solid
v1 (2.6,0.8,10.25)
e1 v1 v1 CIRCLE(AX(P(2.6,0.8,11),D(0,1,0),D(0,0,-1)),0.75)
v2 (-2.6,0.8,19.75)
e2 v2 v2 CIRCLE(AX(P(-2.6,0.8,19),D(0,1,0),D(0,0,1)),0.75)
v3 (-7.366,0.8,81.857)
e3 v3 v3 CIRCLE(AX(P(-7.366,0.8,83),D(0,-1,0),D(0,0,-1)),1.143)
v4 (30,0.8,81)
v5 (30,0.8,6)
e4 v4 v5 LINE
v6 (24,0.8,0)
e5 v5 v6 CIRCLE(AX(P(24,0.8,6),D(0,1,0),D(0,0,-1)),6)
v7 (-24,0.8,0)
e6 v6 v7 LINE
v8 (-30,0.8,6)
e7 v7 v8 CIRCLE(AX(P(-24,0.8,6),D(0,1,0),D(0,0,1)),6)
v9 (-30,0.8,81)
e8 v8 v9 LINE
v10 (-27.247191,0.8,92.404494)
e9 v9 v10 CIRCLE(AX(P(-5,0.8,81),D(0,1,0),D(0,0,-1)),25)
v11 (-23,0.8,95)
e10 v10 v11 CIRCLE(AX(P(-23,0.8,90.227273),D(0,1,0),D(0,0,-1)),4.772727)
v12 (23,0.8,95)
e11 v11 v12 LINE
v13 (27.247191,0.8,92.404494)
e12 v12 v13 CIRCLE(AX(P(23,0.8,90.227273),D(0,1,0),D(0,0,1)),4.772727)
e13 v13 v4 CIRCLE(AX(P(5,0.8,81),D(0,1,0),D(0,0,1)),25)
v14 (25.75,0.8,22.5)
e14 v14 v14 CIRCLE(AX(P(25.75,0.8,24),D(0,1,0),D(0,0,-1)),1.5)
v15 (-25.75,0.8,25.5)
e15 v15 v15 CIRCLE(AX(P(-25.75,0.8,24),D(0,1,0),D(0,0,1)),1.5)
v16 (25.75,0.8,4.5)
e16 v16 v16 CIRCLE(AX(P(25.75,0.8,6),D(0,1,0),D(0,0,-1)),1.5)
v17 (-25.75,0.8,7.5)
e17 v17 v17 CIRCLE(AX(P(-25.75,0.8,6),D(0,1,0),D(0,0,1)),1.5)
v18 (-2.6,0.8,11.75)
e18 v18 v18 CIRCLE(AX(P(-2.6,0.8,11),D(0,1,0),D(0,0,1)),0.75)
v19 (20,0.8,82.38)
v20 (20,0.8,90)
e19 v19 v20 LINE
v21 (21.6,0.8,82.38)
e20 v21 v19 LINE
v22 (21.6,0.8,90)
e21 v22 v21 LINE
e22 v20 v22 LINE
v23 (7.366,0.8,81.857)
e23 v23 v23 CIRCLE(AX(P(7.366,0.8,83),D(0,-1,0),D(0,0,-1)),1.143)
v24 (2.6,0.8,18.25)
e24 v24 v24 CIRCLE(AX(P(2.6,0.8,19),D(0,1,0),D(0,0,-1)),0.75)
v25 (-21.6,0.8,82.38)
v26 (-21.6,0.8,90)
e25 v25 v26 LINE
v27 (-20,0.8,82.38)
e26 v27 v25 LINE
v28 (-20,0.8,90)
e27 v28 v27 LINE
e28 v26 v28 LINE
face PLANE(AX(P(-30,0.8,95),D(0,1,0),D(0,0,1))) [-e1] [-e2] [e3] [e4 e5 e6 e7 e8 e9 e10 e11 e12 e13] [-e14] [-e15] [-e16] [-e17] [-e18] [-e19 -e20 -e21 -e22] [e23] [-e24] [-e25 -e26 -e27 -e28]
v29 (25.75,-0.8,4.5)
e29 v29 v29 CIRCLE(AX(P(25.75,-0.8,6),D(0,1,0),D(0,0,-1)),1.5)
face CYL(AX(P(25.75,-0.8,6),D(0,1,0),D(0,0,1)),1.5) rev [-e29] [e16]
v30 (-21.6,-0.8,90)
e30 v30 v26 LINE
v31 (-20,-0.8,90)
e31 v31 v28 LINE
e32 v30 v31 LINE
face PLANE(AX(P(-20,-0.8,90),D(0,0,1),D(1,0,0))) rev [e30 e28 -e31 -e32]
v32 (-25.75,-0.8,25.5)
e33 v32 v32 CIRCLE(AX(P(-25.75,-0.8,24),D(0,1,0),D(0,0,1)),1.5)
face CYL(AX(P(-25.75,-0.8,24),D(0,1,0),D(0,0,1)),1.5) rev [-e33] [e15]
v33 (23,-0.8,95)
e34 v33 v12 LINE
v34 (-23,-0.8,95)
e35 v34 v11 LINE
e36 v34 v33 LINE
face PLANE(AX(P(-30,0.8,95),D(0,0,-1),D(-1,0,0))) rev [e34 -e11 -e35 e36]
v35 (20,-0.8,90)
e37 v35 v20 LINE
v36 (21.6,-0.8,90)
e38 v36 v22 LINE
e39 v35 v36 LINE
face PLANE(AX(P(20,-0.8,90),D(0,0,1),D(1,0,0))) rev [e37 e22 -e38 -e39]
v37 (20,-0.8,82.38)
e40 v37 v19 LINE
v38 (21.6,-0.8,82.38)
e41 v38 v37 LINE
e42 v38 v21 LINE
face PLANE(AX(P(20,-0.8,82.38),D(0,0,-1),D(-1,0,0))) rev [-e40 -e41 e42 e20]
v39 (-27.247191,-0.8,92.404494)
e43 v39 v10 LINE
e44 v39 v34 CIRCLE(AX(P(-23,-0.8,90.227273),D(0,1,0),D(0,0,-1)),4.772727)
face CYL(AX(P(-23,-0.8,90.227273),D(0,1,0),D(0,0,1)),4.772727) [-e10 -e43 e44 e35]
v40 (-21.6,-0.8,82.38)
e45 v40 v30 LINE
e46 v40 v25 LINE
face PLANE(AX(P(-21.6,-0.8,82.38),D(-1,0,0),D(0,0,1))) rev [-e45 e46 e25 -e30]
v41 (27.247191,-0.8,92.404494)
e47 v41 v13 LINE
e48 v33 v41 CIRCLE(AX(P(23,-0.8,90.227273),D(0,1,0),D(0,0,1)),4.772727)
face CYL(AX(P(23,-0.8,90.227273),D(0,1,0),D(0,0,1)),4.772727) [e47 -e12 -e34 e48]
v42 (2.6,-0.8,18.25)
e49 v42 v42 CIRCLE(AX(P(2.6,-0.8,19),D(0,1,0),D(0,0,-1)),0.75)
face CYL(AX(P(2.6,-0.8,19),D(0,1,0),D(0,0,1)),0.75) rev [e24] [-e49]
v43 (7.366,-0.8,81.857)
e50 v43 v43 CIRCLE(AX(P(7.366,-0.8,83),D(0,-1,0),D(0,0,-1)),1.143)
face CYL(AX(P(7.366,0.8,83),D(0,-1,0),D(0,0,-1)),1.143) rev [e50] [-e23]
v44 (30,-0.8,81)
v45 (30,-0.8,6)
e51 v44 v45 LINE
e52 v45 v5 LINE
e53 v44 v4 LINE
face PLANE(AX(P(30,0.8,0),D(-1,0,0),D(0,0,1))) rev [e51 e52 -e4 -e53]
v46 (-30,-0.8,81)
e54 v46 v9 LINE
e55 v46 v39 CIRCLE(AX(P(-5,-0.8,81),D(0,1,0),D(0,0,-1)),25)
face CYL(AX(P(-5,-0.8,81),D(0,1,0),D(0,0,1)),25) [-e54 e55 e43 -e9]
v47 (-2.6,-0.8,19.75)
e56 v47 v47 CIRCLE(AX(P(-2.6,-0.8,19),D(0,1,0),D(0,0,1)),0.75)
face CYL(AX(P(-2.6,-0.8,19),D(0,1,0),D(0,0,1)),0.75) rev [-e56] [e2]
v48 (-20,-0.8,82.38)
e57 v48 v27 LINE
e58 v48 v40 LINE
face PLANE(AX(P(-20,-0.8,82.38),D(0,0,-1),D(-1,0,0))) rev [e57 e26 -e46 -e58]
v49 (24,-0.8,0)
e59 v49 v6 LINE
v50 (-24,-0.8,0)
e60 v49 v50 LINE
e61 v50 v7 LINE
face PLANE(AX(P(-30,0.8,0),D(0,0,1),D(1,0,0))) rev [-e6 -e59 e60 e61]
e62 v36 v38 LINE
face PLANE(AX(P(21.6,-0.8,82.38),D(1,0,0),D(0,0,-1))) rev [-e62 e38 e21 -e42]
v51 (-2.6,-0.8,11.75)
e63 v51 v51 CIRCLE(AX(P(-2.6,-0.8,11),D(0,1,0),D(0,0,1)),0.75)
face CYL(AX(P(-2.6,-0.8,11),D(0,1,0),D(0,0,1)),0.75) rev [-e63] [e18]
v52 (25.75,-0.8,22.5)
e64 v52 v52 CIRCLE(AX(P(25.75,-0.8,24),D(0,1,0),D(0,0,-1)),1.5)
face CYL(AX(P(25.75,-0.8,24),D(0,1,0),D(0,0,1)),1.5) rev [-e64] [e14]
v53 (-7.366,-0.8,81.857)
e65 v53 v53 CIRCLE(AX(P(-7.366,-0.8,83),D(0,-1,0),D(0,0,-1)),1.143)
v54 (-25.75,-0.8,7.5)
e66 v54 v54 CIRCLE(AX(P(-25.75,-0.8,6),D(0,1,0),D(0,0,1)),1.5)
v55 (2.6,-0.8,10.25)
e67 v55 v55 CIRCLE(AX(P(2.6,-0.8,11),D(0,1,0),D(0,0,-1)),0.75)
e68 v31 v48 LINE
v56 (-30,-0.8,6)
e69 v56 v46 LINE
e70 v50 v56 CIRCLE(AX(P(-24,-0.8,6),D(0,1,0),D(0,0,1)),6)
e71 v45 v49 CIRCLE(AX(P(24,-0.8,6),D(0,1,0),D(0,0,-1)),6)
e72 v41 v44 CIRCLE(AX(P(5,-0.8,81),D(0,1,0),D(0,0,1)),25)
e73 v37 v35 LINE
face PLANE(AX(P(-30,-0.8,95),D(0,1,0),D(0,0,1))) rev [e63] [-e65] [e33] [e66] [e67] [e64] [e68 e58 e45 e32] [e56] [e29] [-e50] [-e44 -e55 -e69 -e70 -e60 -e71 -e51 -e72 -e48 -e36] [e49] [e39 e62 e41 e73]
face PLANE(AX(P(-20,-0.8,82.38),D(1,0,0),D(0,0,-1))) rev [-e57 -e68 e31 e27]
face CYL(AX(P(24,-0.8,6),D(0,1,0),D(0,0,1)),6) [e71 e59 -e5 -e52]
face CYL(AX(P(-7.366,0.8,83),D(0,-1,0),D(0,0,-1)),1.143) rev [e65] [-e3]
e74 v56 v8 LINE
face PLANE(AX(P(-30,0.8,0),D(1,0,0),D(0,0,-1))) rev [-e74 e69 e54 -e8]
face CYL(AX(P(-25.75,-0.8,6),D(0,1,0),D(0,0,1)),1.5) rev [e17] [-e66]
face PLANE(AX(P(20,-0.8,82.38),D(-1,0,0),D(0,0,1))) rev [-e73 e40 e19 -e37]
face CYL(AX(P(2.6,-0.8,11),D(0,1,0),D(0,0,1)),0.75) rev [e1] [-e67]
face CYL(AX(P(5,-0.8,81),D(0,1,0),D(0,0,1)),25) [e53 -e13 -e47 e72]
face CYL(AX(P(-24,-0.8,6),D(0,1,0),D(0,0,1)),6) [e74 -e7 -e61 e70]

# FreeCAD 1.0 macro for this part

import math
import FreeCAD as App
import Part
import Sketcher

V = App.Vector


def add_polygon(sketch, points):
    """Adds a closed chain of lines whose ends are joined by coincident constraints."""
    first, n = sketch.GeometryCount, len(points)
    for a, b in zip(points, points[1:] + points[:1]):
        sketch.addGeometry(Part.LineSegment(App.Vector(*a, 0), App.Vector(*b, 0)), False)
    for i in range(n):
        sketch.addConstraint(Sketcher.Constraint("Coincident", first + i, 2, first + (i + 1) % n, 1))

doc = App.newDocument("Part")
body = doc.addObject("PartDesign::Body", "Body")

sketch1 = body.newObject("Sketcher::SketchObject", "Sketch")
sketch1.AttachmentSupport = (doc.getObject("XZ_Plane"), [""])
sketch1.MapMode = "FlatFace"
add_polygon(sketch1, [(-30, 0), (-30, 95), (30, 95), (30, 0)])
sketch1.addConstraint(Sketcher.Constraint("Vertical", 0))
sketch1.addConstraint(Sketcher.Constraint("Horizontal", 1))
sketch1.addConstraint(Sketcher.Constraint("Vertical", 2))
sketch1.addConstraint(Sketcher.Constraint("Horizontal", 3))
sketch1.addConstraint(Sketcher.Constraint("Symmetric", 2, 2, 3, 2, -1, 1))
sketch1.addConstraint(Sketcher.Constraint("DistanceX", 1, 1, 1, 2, 60.0))
sketch1.addConstraint(Sketcher.Constraint("DistanceY", 0, 1, 0, 2, 95.0))
pad1 = body.newObject("PartDesign::Pad", "Pad")
pad1.Profile = sketch1
pad1.Length = 1.6
pad1.Midplane = True

sketch2 = body.newObject("Sketcher::SketchObject", "Sketch001")
sketch2.AttachmentSupport = (doc.getObject("XZ_Plane"), [""])
sketch2.MapMode = "FlatFace"
sketch2.AttachmentOffset = App.Placement(V(0, 0, -0.8), App.Rotation())
add_polygon(sketch2, [(-42.2, -12.2), (-42.2, 107.2), (42.2, 107.2), (42.2, -12.2)])
sketch2.addGeometry(Part.ArcOfCircle(Part.Circle(V(-24, 6, 0), V(0, 0, 1), 6), math.radians(180), math.radians(270)), False)
sketch2.addGeometry(Part.LineSegment(V(-24, 0, 0), V(24, 0, 0)), False)
sketch2.addGeometry(Part.ArcOfCircle(Part.Circle(V(24, 6, 0), V(0, 0, 1), 6), math.radians(-90), math.radians(0)), False)
sketch2.addGeometry(Part.LineSegment(V(30, 6, 0), V(30, 81, 0)), False)
sketch2.addGeometry(Part.ArcOfCircle(Part.Circle(V(5, 81, 0), V(0, 0, 1), 25), math.radians(0), math.radians(27)), False)
sketch2.addGeometry(Part.ArcOfCircle(Part.Circle(V(23, 90.2, 0), V(0, 0, 1), 4.8), math.radians(27), math.radians(90)), False)
sketch2.addGeometry(Part.LineSegment(V(23, 95, 0), V(-23, 95, 0)), False)
sketch2.addGeometry(Part.ArcOfCircle(Part.Circle(V(-23, 90.2, 0), V(0, 0, 1), 4.8), math.radians(90), math.radians(153)), False)
sketch2.addGeometry(Part.ArcOfCircle(Part.Circle(V(-5, 81, 0), V(0, 0, 1), 25), math.radians(153), math.radians(180)), False)
sketch2.addGeometry(Part.LineSegment(V(-30, 81, 0), V(-30, 6, 0)), False)
sketch2.addConstraint(Sketcher.Constraint("Tangent", 4, 2, 5, 1))
sketch2.addConstraint(Sketcher.Constraint("Tangent", 5, 2, 6, 1))
sketch2.addConstraint(Sketcher.Constraint("Tangent", 6, 2, 7, 1))
sketch2.addConstraint(Sketcher.Constraint("Tangent", 7, 2, 8, 1))
sketch2.addConstraint(Sketcher.Constraint("Tangent", 8, 2, 9, 1))
sketch2.addConstraint(Sketcher.Constraint("Tangent", 9, 2, 10, 1))
sketch2.addConstraint(Sketcher.Constraint("Tangent", 10, 2, 11, 1))
sketch2.addConstraint(Sketcher.Constraint("Tangent", 11, 2, 12, 1))
sketch2.addConstraint(Sketcher.Constraint("Tangent", 12, 2, 13, 1))
sketch2.addConstraint(Sketcher.Constraint("Tangent", 13, 2, 4, 1))
sketch2.addConstraint(Sketcher.Constraint("Vertical", 0))
sketch2.addConstraint(Sketcher.Constraint("Horizontal", 1))
sketch2.addConstraint(Sketcher.Constraint("Vertical", 2))
sketch2.addConstraint(Sketcher.Constraint("Horizontal", 3))
sketch2.addConstraint(Sketcher.Constraint("Horizontal", 5))
sketch2.addConstraint(Sketcher.Constraint("Vertical", 7))
sketch2.addConstraint(Sketcher.Constraint("Horizontal", 10))
sketch2.addConstraint(Sketcher.Constraint("Vertical", 13))
sketch2.addConstraint(Sketcher.Constraint("Equal", 4, 6))
sketch2.addConstraint(Sketcher.Constraint("Equal", 9, 11))
sketch2.addConstraint(Sketcher.Constraint("Equal", 8, 12))
sketch2.addConstraint(Sketcher.Constraint("Symmetric", 4, 2, 5, 2, -1, 1))
sketch2.addConstraint(Sketcher.Constraint("Horizontal", 8, 3, 12, 3))
sketch2.addConstraint(Sketcher.Constraint("Radius", 4, 6.0))
sketch2.addConstraint(Sketcher.Constraint("Radius", 8, 25.0))
sketch2.addConstraint(Sketcher.Constraint("DistanceX", 5, 1, 5, 2, 48.0))
sketch2.addConstraint(Sketcher.Constraint("DistanceX", 10, 2, 10, 1, 46.0))
sketch2.addConstraint(Sketcher.Constraint("DistanceY", 7, 1, 7, 2, 75.0))
sketch2.addConstraint(Sketcher.Constraint("DistanceY", -1, 1, 9, 2, 95.0))
sketch2.addConstraint(Sketcher.Constraint("DistanceX", 1, 1, 1, 2, 84.474))
sketch2.addConstraint(Sketcher.Constraint("DistanceY", 0, 1, 0, 2, 119.474))
sketch2.addConstraint(Sketcher.Constraint("DistanceX", 0, 2, -1, 1, 42.237))
sketch2.addConstraint(Sketcher.Constraint("DistanceY", -1, 1, 0, 2, 107.237))
pocket1 = body.newObject("PartDesign::Pocket", "Pocket")
pocket1.Profile = sketch2
pocket1.Type = "ThroughAll"
pocket1.Reversed = True

sketch3 = body.newObject("Sketcher::SketchObject", "Sketch002")
sketch3.AttachmentSupport = (doc.getObject("XZ_Plane"), [""])
sketch3.MapMode = "FlatFace"
sketch3.AttachmentOffset = App.Placement(V(0, 0, -0.8), App.Rotation())
add_polygon(sketch3, [(-21.6, 82.4), (-21.6, 90), (-20, 90), (-20, 82.4)])
add_polygon(sketch3, [(20, 82.4), (20, 90), (21.6, 90), (21.6, 82.4)])
sketch3.addConstraint(Sketcher.Constraint("Vertical", 0))
sketch3.addConstraint(Sketcher.Constraint("Horizontal", 1))
sketch3.addConstraint(Sketcher.Constraint("Vertical", 2))
sketch3.addConstraint(Sketcher.Constraint("Horizontal", 3))
sketch3.addConstraint(Sketcher.Constraint("Vertical", 4))
sketch3.addConstraint(Sketcher.Constraint("Horizontal", 5))
sketch3.addConstraint(Sketcher.Constraint("Vertical", 6))
sketch3.addConstraint(Sketcher.Constraint("Horizontal", 7))
sketch3.addConstraint(Sketcher.Constraint("Symmetric", 1, 2, 4, 2, -2))
sketch3.addConstraint(Sketcher.Constraint("Symmetric", 3, 2, 6, 2, -2))
sketch3.addConstraint(Sketcher.Constraint("DistanceX", 1, 1, 1, 2, 1.6))
sketch3.addConstraint(Sketcher.Constraint("DistanceY", -1, 1, 0, 2, 90.0))
sketch3.addConstraint(Sketcher.Constraint("DistanceX", 1, 2, -1, 1, 20.0))
sketch3.addConstraint(Sketcher.Constraint("DistanceY", 0, 1, 0, 2, 7.62))
pocket2 = body.newObject("PartDesign::Pocket", "Pocket001")
pocket2.Profile = sketch3
pocket2.Type = "ThroughAll"
pocket2.Reversed = True

sketch4 = body.newObject("Sketcher::SketchObject", "Sketch003")
sketch4.AttachmentSupport = (doc.getObject("XZ_Plane"), [""])
sketch4.MapMode = "FlatFace"
sketch4.AttachmentOffset = App.Placement(V(0, 0, -0.8), App.Rotation())
sketch4.addGeometry(Part.Circle(V(-25.8, 6, 0), V(0, 0, 1), 1.5), False)
sketch4.addGeometry(Part.Circle(V(-25.8, 24, 0), V(0, 0, 1), 1.5), False)
sketch4.addGeometry(Part.Circle(V(25.8, 24, 0), V(0, 0, 1), 1.5), False)
sketch4.addGeometry(Part.Circle(V(25.8, 6, 0), V(0, 0, 1), 1.5), False)
sketch4.addConstraint(Sketcher.Constraint("Equal", 0, 1))
sketch4.addConstraint(Sketcher.Constraint("Equal", 1, 2))
sketch4.addConstraint(Sketcher.Constraint("Equal", 2, 3))
sketch4.addConstraint(Sketcher.Constraint("Symmetric", 1, 3, 2, 3, -2))
sketch4.addConstraint(Sketcher.Constraint("Symmetric", 0, 3, 3, 3, -2))
sketch4.addConstraint(Sketcher.Constraint("Vertical", 0, 3, 1, 3))
sketch4.addConstraint(Sketcher.Constraint("Diameter", 0, 3.0))
sketch4.addConstraint(Sketcher.Constraint("DistanceY", -1, 1, 0, 3, 6.0))
sketch4.addConstraint(Sketcher.Constraint("DistanceY", -1, 1, 1, 3, 24.0))
sketch4.addConstraint(Sketcher.Constraint("DistanceX", 1, 3, 2, 3, 51.5))
pocket3 = body.newObject("PartDesign::Pocket", "Pocket002")
pocket3.Profile = sketch4
pocket3.Type = "ThroughAll"
pocket3.Reversed = True

sketch5 = body.newObject("Sketcher::SketchObject", "Sketch004")
sketch5.AttachmentSupport = (doc.getObject("XZ_Plane"), [""])
sketch5.MapMode = "FlatFace"
sketch5.AttachmentOffset = App.Placement(V(0, 0, 0.8), App.Rotation())
sketch5.addGeometry(Part.Circle(V(-7.4, 83, 0), V(0, 0, 1), 1.1), False)
sketch5.addGeometry(Part.Circle(V(7.4, 83, 0), V(0, 0, 1), 1.1), False)
sketch5.addConstraint(Sketcher.Constraint("Equal", 0, 1))
sketch5.addConstraint(Sketcher.Constraint("Symmetric", 0, 3, 1, 3, -2))
sketch5.addConstraint(Sketcher.Constraint("Diameter", 0, 2.286))
sketch5.addConstraint(Sketcher.Constraint("DistanceY", -1, 1, 0, 3, 83.0))
sketch5.addConstraint(Sketcher.Constraint("DistanceX", 0, 3, -1, 1, 7.366))
pocket4 = body.newObject("PartDesign::Pocket", "Pocket003")
pocket4.Profile = sketch5
pocket4.Type = "ThroughAll"

sketch6 = body.newObject("Sketcher::SketchObject", "Sketch005")
sketch6.AttachmentSupport = (doc.getObject("XZ_Plane"), [""])
sketch6.MapMode = "FlatFace"
sketch6.AttachmentOffset = App.Placement(V(0, 0, -0.8), App.Rotation())
sketch6.addGeometry(Part.Circle(V(-2.6, 11, 0), V(0, 0, 1), 0.8), False)
sketch6.addGeometry(Part.Circle(V(-2.6, 19, 0), V(0, 0, 1), 0.8), False)
sketch6.addGeometry(Part.Circle(V(2.6, 19, 0), V(0, 0, 1), 0.8), False)
sketch6.addGeometry(Part.Circle(V(2.6, 11, 0), V(0, 0, 1), 0.8), False)
sketch6.addConstraint(Sketcher.Constraint("Equal", 0, 1))
sketch6.addConstraint(Sketcher.Constraint("Equal", 1, 2))
sketch6.addConstraint(Sketcher.Constraint("Equal", 2, 3))
sketch6.addConstraint(Sketcher.Constraint("Symmetric", 1, 3, 2, 3, -2))
sketch6.addConstraint(Sketcher.Constraint("Symmetric", 0, 3, 3, 3, -2))
sketch6.addConstraint(Sketcher.Constraint("Vertical", 0, 3, 1, 3))
sketch6.addConstraint(Sketcher.Constraint("Diameter", 0, 1.5))
sketch6.addConstraint(Sketcher.Constraint("DistanceY", -1, 1, 0, 3, 11.0))
sketch6.addConstraint(Sketcher.Constraint("DistanceY", -1, 1, 1, 3, 19.0))
sketch6.addConstraint(Sketcher.Constraint("DistanceX", 0, 3, -1, 1, 2.6))
pocket5 = body.newObject("PartDesign::Pocket", "Pocket004")
pocket5.Profile = sketch6
pocket5.Type = "ThroughAll"
pocket5.Reversed = True

doc.recompute()
